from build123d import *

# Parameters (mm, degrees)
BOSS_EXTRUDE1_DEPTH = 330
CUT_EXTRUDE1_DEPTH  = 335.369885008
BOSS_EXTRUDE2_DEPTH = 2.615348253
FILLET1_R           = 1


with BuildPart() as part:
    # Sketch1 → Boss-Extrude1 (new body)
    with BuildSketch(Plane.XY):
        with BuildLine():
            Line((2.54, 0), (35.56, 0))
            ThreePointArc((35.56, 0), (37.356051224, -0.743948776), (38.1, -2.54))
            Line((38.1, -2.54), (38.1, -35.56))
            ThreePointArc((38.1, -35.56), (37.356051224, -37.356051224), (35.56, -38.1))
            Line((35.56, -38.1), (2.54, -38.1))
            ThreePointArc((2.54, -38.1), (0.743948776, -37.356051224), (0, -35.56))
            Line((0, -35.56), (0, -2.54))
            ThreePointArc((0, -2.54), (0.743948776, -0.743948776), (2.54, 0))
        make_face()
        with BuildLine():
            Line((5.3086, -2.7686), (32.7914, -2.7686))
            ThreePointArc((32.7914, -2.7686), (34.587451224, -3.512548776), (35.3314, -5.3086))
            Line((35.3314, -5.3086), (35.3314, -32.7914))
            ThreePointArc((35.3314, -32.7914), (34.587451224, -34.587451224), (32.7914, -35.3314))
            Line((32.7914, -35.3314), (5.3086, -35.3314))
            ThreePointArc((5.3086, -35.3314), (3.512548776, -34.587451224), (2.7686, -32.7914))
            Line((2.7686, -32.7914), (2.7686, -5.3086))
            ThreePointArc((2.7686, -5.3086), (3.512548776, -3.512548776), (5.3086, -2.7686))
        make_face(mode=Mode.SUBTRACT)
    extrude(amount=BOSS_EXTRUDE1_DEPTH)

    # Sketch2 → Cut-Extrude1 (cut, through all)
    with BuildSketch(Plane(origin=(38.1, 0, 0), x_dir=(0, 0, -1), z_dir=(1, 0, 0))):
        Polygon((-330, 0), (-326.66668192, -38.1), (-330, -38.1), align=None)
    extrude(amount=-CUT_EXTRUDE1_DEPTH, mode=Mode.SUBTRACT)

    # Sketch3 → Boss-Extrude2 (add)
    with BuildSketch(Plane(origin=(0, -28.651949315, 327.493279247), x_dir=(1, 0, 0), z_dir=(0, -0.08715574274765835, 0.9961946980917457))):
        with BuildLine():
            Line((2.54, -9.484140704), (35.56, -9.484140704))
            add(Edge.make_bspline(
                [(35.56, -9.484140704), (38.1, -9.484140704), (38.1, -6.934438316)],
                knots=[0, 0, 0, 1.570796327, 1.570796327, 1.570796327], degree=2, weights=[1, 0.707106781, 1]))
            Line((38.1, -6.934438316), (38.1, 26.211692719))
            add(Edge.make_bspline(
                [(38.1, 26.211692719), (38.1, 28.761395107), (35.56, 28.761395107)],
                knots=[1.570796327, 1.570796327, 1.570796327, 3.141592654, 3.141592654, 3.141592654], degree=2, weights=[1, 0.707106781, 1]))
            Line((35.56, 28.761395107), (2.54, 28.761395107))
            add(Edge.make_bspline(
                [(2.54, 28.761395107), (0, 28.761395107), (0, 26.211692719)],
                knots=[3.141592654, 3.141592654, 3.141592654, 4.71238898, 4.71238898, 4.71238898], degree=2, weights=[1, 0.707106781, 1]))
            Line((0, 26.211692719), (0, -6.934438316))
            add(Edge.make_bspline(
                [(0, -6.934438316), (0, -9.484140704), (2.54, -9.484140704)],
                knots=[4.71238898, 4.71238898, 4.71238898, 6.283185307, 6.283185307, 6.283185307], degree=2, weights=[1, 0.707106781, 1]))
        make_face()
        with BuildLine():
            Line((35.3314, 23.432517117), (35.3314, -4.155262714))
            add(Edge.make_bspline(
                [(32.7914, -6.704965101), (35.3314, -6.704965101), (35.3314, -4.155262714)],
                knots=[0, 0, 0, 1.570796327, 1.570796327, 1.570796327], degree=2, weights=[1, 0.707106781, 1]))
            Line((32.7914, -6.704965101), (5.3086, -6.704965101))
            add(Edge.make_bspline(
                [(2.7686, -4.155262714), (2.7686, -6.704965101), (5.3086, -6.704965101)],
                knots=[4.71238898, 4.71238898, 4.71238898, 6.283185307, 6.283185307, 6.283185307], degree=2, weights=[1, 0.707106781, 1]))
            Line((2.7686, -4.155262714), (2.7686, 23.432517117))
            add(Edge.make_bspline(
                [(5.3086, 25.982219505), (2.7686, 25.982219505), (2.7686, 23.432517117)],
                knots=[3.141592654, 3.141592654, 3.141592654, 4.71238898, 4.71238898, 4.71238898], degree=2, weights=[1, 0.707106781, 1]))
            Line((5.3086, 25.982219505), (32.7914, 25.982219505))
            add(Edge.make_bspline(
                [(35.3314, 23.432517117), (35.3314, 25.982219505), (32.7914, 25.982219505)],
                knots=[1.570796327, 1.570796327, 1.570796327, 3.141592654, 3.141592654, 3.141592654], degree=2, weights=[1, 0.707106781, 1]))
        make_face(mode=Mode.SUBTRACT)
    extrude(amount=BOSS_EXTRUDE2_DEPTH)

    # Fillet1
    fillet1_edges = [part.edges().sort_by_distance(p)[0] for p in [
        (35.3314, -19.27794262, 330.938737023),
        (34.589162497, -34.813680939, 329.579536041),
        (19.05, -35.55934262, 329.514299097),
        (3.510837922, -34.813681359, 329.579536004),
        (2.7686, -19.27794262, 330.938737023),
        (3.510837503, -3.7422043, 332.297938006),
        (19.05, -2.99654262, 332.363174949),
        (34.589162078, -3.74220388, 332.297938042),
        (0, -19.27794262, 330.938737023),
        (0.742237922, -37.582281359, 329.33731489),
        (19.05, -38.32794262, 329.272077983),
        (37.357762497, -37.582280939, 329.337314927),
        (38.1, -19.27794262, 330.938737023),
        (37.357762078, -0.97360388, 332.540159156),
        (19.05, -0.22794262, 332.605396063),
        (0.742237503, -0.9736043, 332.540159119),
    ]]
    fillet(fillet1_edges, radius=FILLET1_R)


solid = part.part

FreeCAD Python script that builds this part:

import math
import FreeCAD as App
import Part
import Sketcher

V = App.Vector
Q = App.Units.Quantity


def edges_at(feature, points):
    """Names of the edges that pass closest to the given points."""
    edges = feature.Shape.Edges
    near = lambda p: min(range(len(edges)), key=lambda i: edges[i].distToShape(Part.Vertex(*p))[0])
    return sorted({f"Edge{near(p) + 1}" for p in points})


def add_polygon(sketch, points):
    """Adds a closed chain of lines whose ends are joined by coincident constraints."""
    first, n = sketch.GeometryCount, len(points)
    for a, b in zip(points, points[1:] + points[:1]):
        sketch.addGeometry(Part.LineSegment(App.Vector(*a, 0), App.Vector(*b, 0)), False)
    for i in range(n):
        sketch.addConstraint(Sketcher.Constraint("Coincident", first + i, 2, first + (i + 1) % n, 1))

doc = App.newDocument("Part")
body = doc.addObject("PartDesign::Body", "Body")

# Sketch on XY plane
sketch1 = body.newObject("Sketcher::SketchObject", "Sketch")
sketch1.AttachmentSupport = (doc.getObject("XY_Plane"), [""])
sketch1.MapMode = "FlatFace"
sketch1.addGeometry([
    Part.LineSegment(V(35.6, 0, 0), V(2.5, 0, 0)),  # 0
    Part.ArcOfCircle(Part.Circle(V(2.5, -2.5, 0), V(0, 0, 1), 2.5), math.radians(90), math.radians(180)),  # 1
    Part.LineSegment(V(0, -2.5, 0), V(0, -35.6, 0)),  # 2
    Part.ArcOfCircle(Part.Circle(V(2.5, -35.6, 0), V(0, 0, 1), 2.5), math.radians(-180), math.radians(-90)),  # 3
    Part.LineSegment(V(2.5, -38.1, 0), V(35.6, -38.1, 0)),  # 4
    Part.ArcOfCircle(Part.Circle(V(35.6, -35.6, 0), V(0, 0, 1), 2.5), math.radians(-90), math.radians(0)),  # 5
    Part.LineSegment(V(38.1, -35.6, 0), V(38.1, -2.5, 0)),  # 6
    Part.ArcOfCircle(Part.Circle(V(35.6, -2.5, 0), V(0, 0, 1), 2.5), math.radians(0), math.radians(90)),  # 7
    Part.LineSegment(V(5.3, -2.8, 0), V(32.8, -2.8, 0)),  # 8
    Part.ArcOfCircle(Part.Circle(V(32.8, -5.3, 0), V(0, 0, 1), 2.5), math.radians(0), math.radians(90)),  # 9
    Part.LineSegment(V(35.3, -5.3, 0), V(35.3, -32.8, 0)),  # 10
    Part.ArcOfCircle(Part.Circle(V(32.8, -32.8, 0), V(0, 0, 1), 2.5), math.radians(-90), math.radians(0)),  # 11
    Part.LineSegment(V(32.8, -35.3, 0), V(5.3, -35.3, 0)),  # 12
    Part.ArcOfCircle(Part.Circle(V(5.3, -32.8, 0), V(0, 0, 1), 2.5), math.radians(-180), math.radians(-90)),  # 13
    Part.LineSegment(V(2.8, -32.8, 0), V(2.8, -5.3, 0)),  # 14
    Part.ArcOfCircle(Part.Circle(V(5.3, -5.3, 0), V(0, 0, 1), 2.5), math.radians(90), math.radians(180)),  # 15
], False)
sketch1.addConstraint([
    Sketcher.Constraint("Tangent", 0, 2, 1, 1),
    Sketcher.Constraint("Tangent", 1, 2, 2, 1),
    Sketcher.Constraint("Tangent", 2, 2, 3, 1),
    Sketcher.Constraint("Tangent", 3, 2, 4, 1),
    Sketcher.Constraint("Tangent", 4, 2, 5, 1),
    Sketcher.Constraint("Tangent", 5, 2, 6, 1),
    Sketcher.Constraint("Tangent", 6, 2, 7, 1),
    Sketcher.Constraint("Tangent", 7, 2, 0, 1),
    Sketcher.Constraint("Tangent", 8, 2, 9, 2),
    Sketcher.Constraint("Tangent", 9, 1, 10, 1),
    Sketcher.Constraint("Tangent", 10, 2, 11, 2),
    Sketcher.Constraint("Tangent", 11, 1, 12, 1),
    Sketcher.Constraint("Tangent", 12, 2, 13, 2),
    Sketcher.Constraint("Tangent", 13, 1, 14, 1),
    Sketcher.Constraint("Tangent", 14, 2, 15, 2),
    Sketcher.Constraint("Tangent", 15, 1, 8, 1),
    Sketcher.Constraint("Horizontal", 0),
    Sketcher.Constraint("Vertical", 2),
    Sketcher.Constraint("Horizontal", 4),
    Sketcher.Constraint("Vertical", 6),
    Sketcher.Constraint("Horizontal", 8),
    Sketcher.Constraint("Vertical", 10),
    Sketcher.Constraint("Horizontal", 12),
    Sketcher.Constraint("Vertical", 14),
    Sketcher.Constraint("Equal", 1, 3),
    Sketcher.Constraint("Equal", 3, 5),
    Sketcher.Constraint("Equal", 5, 7),
    Sketcher.Constraint("Equal", 7, 9),
    Sketcher.Constraint("Equal", 9, 11),
    Sketcher.Constraint("Equal", 11, 13),
    Sketcher.Constraint("Equal", 13, 15),
    Sketcher.Constraint("PointOnObject", 0, 2, -1),
    Sketcher.Constraint("PointOnObject", 1, 2, -2),
    Sketcher.Constraint("Equal", 4, 2),
    Sketcher.Constraint("Equal", 12, 10),
    Sketcher.Constraint("Radius", 1, Q("0.1 in")),
    Sketcher.Constraint("DistanceX", 0, 2, 0, 1, Q("1.3 in")),
    Sketcher.Constraint("DistanceX", 8, 1, 8, 2, Q("1.082 in")),
    Sketcher.Constraint("DistanceX", -1, 1, 9, 3, Q("1.291 in")),
    Sketcher.Constraint("DistanceY", 9, 3, -1, 1, Q("0.209 in")),
])
pad1 = body.newObject("PartDesign::Pad", "Pad")
pad1.Profile = sketch1
pad1.Length = 330

# Sketch on YZ plane
sketch2 = body.newObject("Sketcher::SketchObject", "Sketch001")
sketch2.AttachmentSupport = (doc.getObject("YZ_Plane"), [""])
sketch2.MapMode = "FlatFace"
sketch2.AttachmentOffset = App.Placement(V(0, 0, 1.5 * 25.4), App.Rotation())
add_polygon(sketch2, [(-38.1, 326.7), (0, 330), (-38.1, 330)])  # lines 0-2
sketch2.addConstraint([
    Sketcher.Constraint("Horizontal", 1),
    Sketcher.Constraint("Vertical", 2),
    Sketcher.Constraint("PointOnObject", 0, 2, -2),
    Sketcher.Constraint("DistanceX", 1, 2, 1, 1, Q("1.5 in")),
    Sketcher.Constraint("Angle", 0, Q("5 deg")),
    Sketcher.Constraint("DistanceY", -1, 1, 0, 2, 330.0),
])
pocket1 = body.newObject("PartDesign::Pocket", "Pocket")
pocket1.Profile = sketch2
pocket1.Type = "ThroughAll"

# Sketch on an angled plane
sketch3 = body.newObject("Sketcher::SketchObject", "Sketch002")
sketch3.Placement = App.Placement(V(0, -28.651949, 327.493279), App.Rotation(V(1, 0, 0), V(0, 0.996194698, 0.087155743), V(0, -0.087155743, 0.996194698), "ZXY"))
sketch3.addGeometry([
    Part.LineSegment(V(2.54, -9.484141, 0), V(35.56, -9.484141, 0)),  # 0
    Part.BSplineCurve([V(35.56, -9.484141, 0), V(38.1, -9.484141, 0), V(38.1, -6.934438, 0)], [3, 3], [0, 1.570796327], False, 2, [1, 0.707106781, 1], False),  # 1
    Part.LineSegment(V(38.1, -6.934438, 0), V(38.1, 26.211693, 0)),  # 2
    Part.BSplineCurve([V(38.1, 26.211693, 0), V(38.1, 28.761395, 0), V(35.56, 28.761395, 0)], [3, 3], [1.570796327, 3.141592654], False, 2, [1, 0.707106781, 1], False),  # 3
    Part.LineSegment(V(35.56, 28.761395, 0), V(2.54, 28.761395, 0)),  # 4
    Part.BSplineCurve([V(2.54, 28.761395, 0), V(0, 28.761395, 0), V(0, 26.211693, 0)], [3, 3], [3.141592654, 4.71238898], False, 2, [1, 0.707106781, 1], False),  # 5
    Part.LineSegment(V(0, 26.211693, 0), V(0, -6.934438, 0)),  # 6
    Part.BSplineCurve([V(0, -6.934438, 0), V(0, -9.484141, 0), V(2.54, -9.484141, 0)], [3, 3], [4.71238898, 6.283185307], False, 2, [1, 0.707106781, 1], False),  # 7
    Part.BSplineCurve([V(35.3314, 23.432517, 0), V(35.3314, 25.98222, 0), V(32.7914, 25.98222, 0)], [3, 3], [1.570796327, 3.141592654], False, 2, [1, 0.707106781, 1], False),  # 8
    Part.LineSegment(V(35.3314, 23.432517, 0), V(35.3314, -4.155263, 0)),  # 9
    Part.BSplineCurve([V(32.7914, -6.704965, 0), V(35.3314, -6.704965, 0), V(35.3314, -4.155263, 0)], [3, 3], [0, 1.570796327], False, 2, [1, 0.707106781, 1], False),  # 10
    Part.LineSegment(V(32.7914, -6.704965, 0), V(5.3086, -6.704965, 0)),  # 11
    Part.BSplineCurve([V(2.7686, -4.155263, 0), V(2.7686, -6.704965, 0), V(5.3086, -6.704965, 0)], [3, 3], [4.71238898, 6.283185307], False, 2, [1, 0.707106781, 1], False),  # 12
    Part.LineSegment(V(2.7686, -4.155263, 0), V(2.7686, 23.432517, 0)),  # 13
    Part.BSplineCurve([V(5.3086, 25.98222, 0), V(2.7686, 25.98222, 0), V(2.7686, 23.432517, 0)], [3, 3], [3.141592654, 4.71238898], False, 2, [1, 0.707106781, 1], False),  # 14
    Part.LineSegment(V(5.3086, 25.98222, 0), V(32.7914, 25.98222, 0)),  # 15
], False)
sketch3.addConstraint([
    Sketcher.Constraint("Block", 1),
    Sketcher.Constraint("Block", 3),
    Sketcher.Constraint("Block", 5),
    Sketcher.Constraint("Block", 7),
    Sketcher.Constraint("Block", 8),
    Sketcher.Constraint("Block", 10),
    Sketcher.Constraint("Block", 12),
    Sketcher.Constraint("Block", 14),
    Sketcher.Constraint("Coincident", 0, 2, 1, 1),
    Sketcher.Constraint("Coincident", 1, 2, 2, 1),
    Sketcher.Constraint("Coincident", 2, 2, 3, 1),
    Sketcher.Constraint("Coincident", 3, 2, 4, 1),
    Sketcher.Constraint("Coincident", 4, 2, 5, 1),
    Sketcher.Constraint("Coincident", 5, 2, 6, 1),
    Sketcher.Constraint("Coincident", 6, 2, 7, 1),
    Sketcher.Constraint("Coincident", 7, 2, 0, 1),
    Sketcher.Constraint("Coincident", 8, 1, 9, 1),
    Sketcher.Constraint("Coincident", 9, 2, 10, 2),
    Sketcher.Constraint("Coincident", 10, 1, 11, 1),
    Sketcher.Constraint("Coincident", 11, 2, 12, 2),
    Sketcher.Constraint("Coincident", 12, 1, 13, 1),
    Sketcher.Constraint("Coincident", 13, 2, 14, 2),
    Sketcher.Constraint("Coincident", 14, 1, 15, 1),
    Sketcher.Constraint("Coincident", 15, 2, 8, 2),
])
pad2 = body.newObject("PartDesign::Pad", "Pad001")
pad2.Profile = sketch3
pad2.Length = 2.615348
doc.recompute()

fillet = body.newObject("PartDesign::Fillet", "Fillet")
fillet.Base = (pad2, edges_at(pad2, [
    (35.331, -19.278, 330.939),
    (34.589, -34.814, 329.58),
    (19.05, -35.559, 329.514),
    (3.511, -34.814, 329.58),
    (2.769, -19.278, 330.939),
    (3.511, -3.742, 332.298),
    (19.05, -2.997, 332.363),
    (34.589, -3.742, 332.298),
    (0, -19.278, 330.939),
    (0.742, -37.582, 329.337),
    (19.05, -38.328, 329.272),
    (37.358, -37.582, 329.337),
    (38.1, -19.278, 330.939),
    (37.358, -0.974, 332.54),
    (19.05, -0.228, 332.605),
    (0.742, -0.974, 332.54),
]))
fillet.Radius = 1

doc.recompute()
